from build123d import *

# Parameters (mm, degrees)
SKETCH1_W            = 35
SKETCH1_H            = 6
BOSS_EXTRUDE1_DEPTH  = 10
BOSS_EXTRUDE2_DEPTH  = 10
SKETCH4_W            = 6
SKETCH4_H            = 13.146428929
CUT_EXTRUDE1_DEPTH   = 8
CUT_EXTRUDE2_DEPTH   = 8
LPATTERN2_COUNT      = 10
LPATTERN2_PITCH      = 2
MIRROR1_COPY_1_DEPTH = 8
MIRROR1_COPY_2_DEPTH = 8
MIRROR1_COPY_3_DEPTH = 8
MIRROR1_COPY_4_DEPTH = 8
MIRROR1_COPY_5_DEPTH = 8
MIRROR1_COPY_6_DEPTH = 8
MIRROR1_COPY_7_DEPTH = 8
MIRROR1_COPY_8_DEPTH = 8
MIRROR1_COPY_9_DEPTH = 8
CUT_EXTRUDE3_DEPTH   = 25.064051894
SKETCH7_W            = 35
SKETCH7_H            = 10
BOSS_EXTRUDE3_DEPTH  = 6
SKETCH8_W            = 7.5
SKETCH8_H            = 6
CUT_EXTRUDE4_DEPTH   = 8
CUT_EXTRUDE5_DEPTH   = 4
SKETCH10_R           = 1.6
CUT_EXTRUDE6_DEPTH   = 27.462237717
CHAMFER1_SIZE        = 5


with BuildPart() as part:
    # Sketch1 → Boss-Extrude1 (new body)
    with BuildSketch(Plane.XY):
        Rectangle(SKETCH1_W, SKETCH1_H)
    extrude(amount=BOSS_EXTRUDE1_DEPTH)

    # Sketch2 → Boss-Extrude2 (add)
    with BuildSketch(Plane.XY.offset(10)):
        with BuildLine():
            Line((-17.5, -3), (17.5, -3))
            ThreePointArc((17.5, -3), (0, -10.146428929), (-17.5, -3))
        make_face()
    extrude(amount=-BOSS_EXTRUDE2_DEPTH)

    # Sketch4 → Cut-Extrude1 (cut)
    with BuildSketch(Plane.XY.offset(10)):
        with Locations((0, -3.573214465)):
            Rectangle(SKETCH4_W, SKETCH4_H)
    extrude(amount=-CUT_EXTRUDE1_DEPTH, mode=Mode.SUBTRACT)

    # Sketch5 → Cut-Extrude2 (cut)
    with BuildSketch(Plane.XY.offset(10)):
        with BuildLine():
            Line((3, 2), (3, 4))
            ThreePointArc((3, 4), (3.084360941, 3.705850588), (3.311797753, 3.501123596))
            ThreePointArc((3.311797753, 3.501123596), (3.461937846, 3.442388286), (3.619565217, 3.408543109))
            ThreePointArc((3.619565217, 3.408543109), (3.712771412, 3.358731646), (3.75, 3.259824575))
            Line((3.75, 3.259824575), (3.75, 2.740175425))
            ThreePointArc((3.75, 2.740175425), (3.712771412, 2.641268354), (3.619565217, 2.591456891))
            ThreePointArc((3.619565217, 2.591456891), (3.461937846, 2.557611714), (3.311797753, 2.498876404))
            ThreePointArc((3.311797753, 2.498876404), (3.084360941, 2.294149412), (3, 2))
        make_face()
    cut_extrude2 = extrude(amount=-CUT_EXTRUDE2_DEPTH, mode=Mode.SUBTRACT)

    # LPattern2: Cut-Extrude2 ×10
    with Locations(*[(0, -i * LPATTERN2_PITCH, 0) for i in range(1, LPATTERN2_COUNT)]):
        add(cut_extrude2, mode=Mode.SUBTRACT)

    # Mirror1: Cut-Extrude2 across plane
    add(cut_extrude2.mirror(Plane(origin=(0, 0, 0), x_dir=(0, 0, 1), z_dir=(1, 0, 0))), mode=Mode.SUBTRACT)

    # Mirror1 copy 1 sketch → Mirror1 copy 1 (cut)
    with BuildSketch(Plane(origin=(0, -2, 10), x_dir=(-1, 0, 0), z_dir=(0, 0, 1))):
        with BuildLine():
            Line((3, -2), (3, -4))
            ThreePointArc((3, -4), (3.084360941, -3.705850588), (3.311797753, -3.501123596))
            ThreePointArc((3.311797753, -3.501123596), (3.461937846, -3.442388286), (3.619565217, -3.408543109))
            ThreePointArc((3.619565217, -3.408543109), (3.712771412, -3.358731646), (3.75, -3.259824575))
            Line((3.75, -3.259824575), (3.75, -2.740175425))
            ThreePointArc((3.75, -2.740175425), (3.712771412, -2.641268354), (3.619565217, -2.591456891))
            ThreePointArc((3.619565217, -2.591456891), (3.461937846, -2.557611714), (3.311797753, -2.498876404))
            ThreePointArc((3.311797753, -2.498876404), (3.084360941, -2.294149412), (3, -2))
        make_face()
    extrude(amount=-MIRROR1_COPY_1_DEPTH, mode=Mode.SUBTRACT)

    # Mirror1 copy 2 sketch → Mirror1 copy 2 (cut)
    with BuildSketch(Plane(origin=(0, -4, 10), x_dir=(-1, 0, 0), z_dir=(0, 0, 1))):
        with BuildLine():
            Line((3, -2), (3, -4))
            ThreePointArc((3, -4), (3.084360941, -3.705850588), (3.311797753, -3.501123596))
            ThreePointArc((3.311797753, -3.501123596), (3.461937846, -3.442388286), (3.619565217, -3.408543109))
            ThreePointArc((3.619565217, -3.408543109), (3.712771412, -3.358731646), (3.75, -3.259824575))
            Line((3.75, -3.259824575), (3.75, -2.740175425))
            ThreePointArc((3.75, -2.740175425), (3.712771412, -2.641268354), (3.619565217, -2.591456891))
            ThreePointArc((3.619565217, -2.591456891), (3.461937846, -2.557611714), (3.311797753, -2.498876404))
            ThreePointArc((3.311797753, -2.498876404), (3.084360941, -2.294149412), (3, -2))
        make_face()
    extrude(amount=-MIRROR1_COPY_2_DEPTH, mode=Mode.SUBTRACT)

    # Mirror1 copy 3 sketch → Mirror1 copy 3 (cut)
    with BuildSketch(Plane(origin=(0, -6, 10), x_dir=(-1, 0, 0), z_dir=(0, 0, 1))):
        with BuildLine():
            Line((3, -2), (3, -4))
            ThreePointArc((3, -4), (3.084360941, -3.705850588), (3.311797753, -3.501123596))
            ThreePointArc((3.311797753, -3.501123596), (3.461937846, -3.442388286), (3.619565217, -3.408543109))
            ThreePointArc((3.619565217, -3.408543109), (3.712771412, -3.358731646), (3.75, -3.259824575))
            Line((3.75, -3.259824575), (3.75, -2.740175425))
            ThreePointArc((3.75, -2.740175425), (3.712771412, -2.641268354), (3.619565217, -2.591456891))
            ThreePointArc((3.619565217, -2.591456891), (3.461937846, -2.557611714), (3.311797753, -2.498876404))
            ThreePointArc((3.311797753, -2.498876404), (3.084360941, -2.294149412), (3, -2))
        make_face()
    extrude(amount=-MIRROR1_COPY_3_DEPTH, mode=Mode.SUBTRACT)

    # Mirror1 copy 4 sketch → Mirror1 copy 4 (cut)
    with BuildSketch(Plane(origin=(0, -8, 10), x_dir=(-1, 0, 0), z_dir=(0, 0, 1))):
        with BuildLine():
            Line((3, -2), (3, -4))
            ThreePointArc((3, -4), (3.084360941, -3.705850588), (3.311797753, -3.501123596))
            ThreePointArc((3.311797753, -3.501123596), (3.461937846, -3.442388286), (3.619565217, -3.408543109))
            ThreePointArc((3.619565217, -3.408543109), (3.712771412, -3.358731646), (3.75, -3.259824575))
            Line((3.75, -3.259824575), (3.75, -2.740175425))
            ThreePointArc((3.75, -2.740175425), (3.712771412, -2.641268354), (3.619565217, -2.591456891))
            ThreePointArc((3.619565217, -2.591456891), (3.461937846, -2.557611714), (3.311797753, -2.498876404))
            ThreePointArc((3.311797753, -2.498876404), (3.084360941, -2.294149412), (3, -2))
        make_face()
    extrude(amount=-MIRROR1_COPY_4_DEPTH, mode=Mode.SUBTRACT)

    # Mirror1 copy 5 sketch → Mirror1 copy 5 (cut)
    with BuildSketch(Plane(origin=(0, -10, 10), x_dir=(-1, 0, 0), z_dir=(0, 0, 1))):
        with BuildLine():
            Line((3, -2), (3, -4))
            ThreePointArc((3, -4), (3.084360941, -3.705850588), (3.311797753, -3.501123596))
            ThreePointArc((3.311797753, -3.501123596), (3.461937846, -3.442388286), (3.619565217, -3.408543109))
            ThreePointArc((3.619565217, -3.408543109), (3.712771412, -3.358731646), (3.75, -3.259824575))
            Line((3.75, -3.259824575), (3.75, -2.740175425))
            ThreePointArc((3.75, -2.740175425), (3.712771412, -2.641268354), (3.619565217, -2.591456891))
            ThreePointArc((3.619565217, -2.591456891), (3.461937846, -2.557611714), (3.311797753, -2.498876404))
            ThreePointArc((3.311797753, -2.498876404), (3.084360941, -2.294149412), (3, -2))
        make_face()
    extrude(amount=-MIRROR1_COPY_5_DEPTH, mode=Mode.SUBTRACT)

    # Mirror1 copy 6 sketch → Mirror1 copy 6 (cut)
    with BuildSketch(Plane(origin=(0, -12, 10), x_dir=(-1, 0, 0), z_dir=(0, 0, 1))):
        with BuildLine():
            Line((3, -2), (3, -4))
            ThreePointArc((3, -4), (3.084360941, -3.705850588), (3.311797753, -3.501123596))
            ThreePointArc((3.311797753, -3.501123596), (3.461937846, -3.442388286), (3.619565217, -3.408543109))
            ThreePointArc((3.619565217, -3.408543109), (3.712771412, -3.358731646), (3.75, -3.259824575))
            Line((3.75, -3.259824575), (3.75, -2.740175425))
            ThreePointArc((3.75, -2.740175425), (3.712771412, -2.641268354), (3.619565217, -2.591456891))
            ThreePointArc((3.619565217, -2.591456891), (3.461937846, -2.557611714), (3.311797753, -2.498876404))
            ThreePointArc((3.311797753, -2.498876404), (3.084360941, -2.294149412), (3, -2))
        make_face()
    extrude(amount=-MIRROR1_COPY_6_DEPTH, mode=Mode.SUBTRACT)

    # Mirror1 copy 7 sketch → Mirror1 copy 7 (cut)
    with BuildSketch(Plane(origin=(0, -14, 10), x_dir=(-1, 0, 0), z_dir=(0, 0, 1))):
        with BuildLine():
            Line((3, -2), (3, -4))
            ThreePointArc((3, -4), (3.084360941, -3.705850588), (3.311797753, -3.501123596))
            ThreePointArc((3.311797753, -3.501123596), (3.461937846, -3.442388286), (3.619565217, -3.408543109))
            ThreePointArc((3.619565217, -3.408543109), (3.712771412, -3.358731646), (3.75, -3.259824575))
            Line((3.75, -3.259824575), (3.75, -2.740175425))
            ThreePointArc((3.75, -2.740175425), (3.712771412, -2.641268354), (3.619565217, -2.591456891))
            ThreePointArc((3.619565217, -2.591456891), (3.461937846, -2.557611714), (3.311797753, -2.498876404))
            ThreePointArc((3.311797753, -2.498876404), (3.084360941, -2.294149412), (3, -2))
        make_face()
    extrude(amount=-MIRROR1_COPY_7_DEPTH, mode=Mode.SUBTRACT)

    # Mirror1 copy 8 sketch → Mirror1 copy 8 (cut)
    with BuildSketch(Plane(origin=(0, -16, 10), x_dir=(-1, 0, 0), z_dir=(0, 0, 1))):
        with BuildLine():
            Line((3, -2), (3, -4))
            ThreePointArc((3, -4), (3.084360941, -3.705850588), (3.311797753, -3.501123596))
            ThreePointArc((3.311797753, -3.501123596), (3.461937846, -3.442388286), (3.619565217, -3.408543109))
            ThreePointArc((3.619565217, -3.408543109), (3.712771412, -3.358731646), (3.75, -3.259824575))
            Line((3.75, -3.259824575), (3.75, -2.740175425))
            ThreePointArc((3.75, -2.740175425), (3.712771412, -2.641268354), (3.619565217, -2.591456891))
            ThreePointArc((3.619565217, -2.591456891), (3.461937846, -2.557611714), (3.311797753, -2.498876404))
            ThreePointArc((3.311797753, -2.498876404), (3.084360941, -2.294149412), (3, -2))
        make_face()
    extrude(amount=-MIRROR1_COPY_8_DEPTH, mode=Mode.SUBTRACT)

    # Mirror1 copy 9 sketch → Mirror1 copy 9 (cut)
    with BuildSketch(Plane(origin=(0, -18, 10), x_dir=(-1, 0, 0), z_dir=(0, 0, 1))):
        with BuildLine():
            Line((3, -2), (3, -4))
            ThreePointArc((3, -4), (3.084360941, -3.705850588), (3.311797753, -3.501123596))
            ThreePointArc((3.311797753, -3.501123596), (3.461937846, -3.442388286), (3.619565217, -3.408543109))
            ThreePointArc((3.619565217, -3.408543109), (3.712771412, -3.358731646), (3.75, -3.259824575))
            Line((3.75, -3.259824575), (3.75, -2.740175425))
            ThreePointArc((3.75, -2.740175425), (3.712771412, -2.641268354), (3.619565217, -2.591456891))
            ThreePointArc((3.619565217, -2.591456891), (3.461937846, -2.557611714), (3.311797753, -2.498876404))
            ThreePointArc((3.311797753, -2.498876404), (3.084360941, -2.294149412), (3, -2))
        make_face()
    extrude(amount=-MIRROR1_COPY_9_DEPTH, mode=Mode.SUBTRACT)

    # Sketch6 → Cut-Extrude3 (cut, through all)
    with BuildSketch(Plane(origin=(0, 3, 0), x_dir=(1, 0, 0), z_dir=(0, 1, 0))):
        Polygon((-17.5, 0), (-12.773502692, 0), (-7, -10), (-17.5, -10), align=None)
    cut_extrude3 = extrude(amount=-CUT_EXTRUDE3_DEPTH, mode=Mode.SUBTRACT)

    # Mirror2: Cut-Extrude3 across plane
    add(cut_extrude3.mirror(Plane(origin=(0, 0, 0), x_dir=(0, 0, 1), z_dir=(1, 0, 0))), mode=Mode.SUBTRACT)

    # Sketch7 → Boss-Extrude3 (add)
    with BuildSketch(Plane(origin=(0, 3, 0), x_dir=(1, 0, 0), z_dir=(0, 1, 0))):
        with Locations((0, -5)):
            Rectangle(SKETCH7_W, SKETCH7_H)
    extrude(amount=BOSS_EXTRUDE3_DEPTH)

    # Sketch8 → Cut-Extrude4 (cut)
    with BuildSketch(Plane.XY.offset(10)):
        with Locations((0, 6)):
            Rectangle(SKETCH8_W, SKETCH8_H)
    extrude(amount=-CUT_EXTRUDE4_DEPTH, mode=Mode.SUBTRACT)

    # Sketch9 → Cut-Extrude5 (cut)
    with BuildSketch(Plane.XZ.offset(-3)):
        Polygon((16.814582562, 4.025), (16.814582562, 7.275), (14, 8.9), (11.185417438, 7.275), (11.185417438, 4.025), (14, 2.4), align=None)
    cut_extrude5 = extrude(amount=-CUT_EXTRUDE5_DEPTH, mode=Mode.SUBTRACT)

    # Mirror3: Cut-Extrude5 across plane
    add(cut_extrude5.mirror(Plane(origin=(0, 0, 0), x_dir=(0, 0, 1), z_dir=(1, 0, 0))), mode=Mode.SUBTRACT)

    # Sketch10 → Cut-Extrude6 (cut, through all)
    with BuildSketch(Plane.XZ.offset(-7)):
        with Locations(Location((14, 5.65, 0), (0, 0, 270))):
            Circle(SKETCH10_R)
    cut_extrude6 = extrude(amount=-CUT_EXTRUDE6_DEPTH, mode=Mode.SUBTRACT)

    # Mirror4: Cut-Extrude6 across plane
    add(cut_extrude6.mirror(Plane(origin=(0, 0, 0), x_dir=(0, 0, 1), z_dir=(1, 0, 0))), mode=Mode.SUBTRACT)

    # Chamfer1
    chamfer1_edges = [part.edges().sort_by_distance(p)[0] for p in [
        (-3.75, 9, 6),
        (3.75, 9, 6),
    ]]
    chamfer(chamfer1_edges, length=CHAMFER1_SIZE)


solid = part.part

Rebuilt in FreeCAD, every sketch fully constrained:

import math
import FreeCAD as App
import Part
import Sketcher
Q = App.Units.Quantity


def edges_at(feature, points):
    """Names of the edges that pass closest to the given points."""
    edges = feature.Shape.Edges
    near = lambda p: min(range(len(edges)), key=lambda i: edges[i].distToShape(Part.Vertex(*p))[0])
    return sorted({f"Edge{near(p) + 1}" for p in points})


def add_polygon(sketch, points):
    """Adds a closed chain of lines whose ends are joined by coincident constraints."""
    first, n = sketch.GeometryCount, len(points)
    for a, b in zip(points, points[1:] + points[:1]):
        sketch.addGeometry(Part.LineSegment(App.Vector(*a, 0), App.Vector(*b, 0)), False)
    for i in range(n):
        sketch.addConstraint(Sketcher.Constraint("Coincident", first + i, 2, first + (i + 1) % n, 1))

doc = App.newDocument("Part")
body = doc.addObject("PartDesign::Body", "Body")

# Sketch on XY plane
sketch1 = body.newObject("Sketcher::SketchObject", "Sketch")
sketch1.AttachmentSupport = (doc.getObject("XY_Plane"), [""])
sketch1.MapMode = "FlatFace"
add_polygon(sketch1, [(-18, 3), (-18, -3), (18, -3), (18, 3)])  # lines 0-3
sketch1.addConstraint(Sketcher.Constraint("Vertical", 0))
sketch1.addConstraint(Sketcher.Constraint("Horizontal", 1))
sketch1.addConstraint(Sketcher.Constraint("Vertical", 2))
sketch1.addConstraint(Sketcher.Constraint("Horizontal", 3))
sketch1.addConstraint(Sketcher.Constraint("Symmetric", 0, 2, 2, 2, -1, 1))
sketch1.addConstraint(Sketcher.Constraint("DistanceX", 1, 1, 1, 2, 35.0))
sketch1.addConstraint(Sketcher.Constraint("DistanceY", 0, 2, 0, 1, 6.0))
pad1 = body.newObject("PartDesign::Pad", "Pad")
pad1.Profile = sketch1
pad1.Length = 10

# Sketch on XY plane
sketch2 = body.newObject("Sketcher::SketchObject", "Sketch001")
sketch2.AttachmentSupport = (doc.getObject("XY_Plane"), [""])
sketch2.MapMode = "FlatFace"
sketch2.AttachmentOffset = App.Placement(App.Vector(0, 0, 10), App.Rotation())
sketch2.addGeometry(Part.LineSegment(App.Vector(18, -3, 0), App.Vector(-18, -3, 0)), False)
sketch2.addGeometry(Part.ArcOfCircle(Part.Circle(App.Vector(0, 15, 0), App.Vector(0, 0, 1), 25), math.radians(-134), math.radians(-46)), False)
sketch2.addConstraint(Sketcher.Constraint("Coincident", 0, 1, 1, 2))
sketch2.addConstraint(Sketcher.Constraint("Coincident", 1, 1, 0, 2))
sketch2.addConstraint(Sketcher.Constraint("Horizontal", 0))
sketch2.addConstraint(Sketcher.Constraint("PointOnObject", 1, 3, -2))
sketch2.addConstraint(Sketcher.Constraint("Radius", 1, 25.0))
sketch2.addConstraint(Sketcher.Constraint("DistanceX", 0, 2, 0, 1, 35.0))
sketch2.addConstraint(Sketcher.Constraint("DistanceY", 0, 1, -1, 1, 3.0))
pad2 = body.newObject("PartDesign::Pad", "Pad001")
pad2.Profile = sketch2
pad2.Length = 10
pad2.Reversed = True

# Sketch on XY plane
sketch3 = body.newObject("Sketcher::SketchObject", "Sketch002")
sketch3.AttachmentSupport = (doc.getObject("XY_Plane"), [""])
sketch3.MapMode = "FlatFace"
sketch3.AttachmentOffset = App.Placement(App.Vector(0, 0, 10), App.Rotation())
add_polygon(sketch3, [(-3, 3), (-3, -10), (3, -10), (3, 3)])  # lines 0-3
sketch3.addConstraint(Sketcher.Constraint("Vertical", 0))
sketch3.addConstraint(Sketcher.Constraint("Horizontal", 1))
sketch3.addConstraint(Sketcher.Constraint("Vertical", 2))
sketch3.addConstraint(Sketcher.Constraint("Horizontal", 3))
sketch3.addConstraint(Sketcher.Constraint("DistanceX", 1, 1, 1, 2, 6.0))
sketch3.addConstraint(Sketcher.Constraint("DistanceX", 0, 2, -1, 1, 3.0))
sketch3.addConstraint(Sketcher.Constraint("DistanceY", -1, 1, 2, 2, 3.0))
sketch3.addConstraint(Sketcher.Constraint("DistanceY", 0, 2, 0, 1, 13.146429))
pocket1 = body.newObject("PartDesign::Pocket", "Pocket")
pocket1.Profile = sketch3
pocket1.Length = 8

# Sketch on XY plane
sketch4 = body.newObject("Sketcher::SketchObject", "Sketch003")
sketch4.AttachmentSupport = (doc.getObject("XY_Plane"), [""])
sketch4.MapMode = "FlatFace"
sketch4.AttachmentOffset = App.Placement(App.Vector(0, 0, 10), App.Rotation())
sketch4.addGeometry(Part.LineSegment(App.Vector(3, 4, 0), App.Vector(3, 2, 0)), False)
sketch4.addGeometry(Part.ArcOfCircle(Part.Circle(App.Vector(3.55, 2, 0), App.Vector(0, 0, 1), 0.55), math.radians(116), math.radians(180)), False)
sketch4.addGeometry(Part.ArcOfCircle(Part.Circle(App.Vector(3.75, 1.6, 0), App.Vector(0, 0, 1), 1), math.radians(97.49), math.radians(115.99)), False)
sketch4.addGeometry(Part.ArcOfCircle(Part.Circle(App.Vector(3.6, 2.74, 0), App.Vector(0, 0, 1), 0.15), math.radians(-83), math.radians(0)), False)
sketch4.addGeometry(Part.LineSegment(App.Vector(3.75, 2.74, 0), App.Vector(3.75, 3.26, 0)), False)
sketch4.addGeometry(Part.ArcOfCircle(Part.Circle(App.Vector(3.6, 3.26, 0), App.Vector(0, 0, 1), 0.15), math.radians(0), math.radians(83)), False)
sketch4.addGeometry(Part.ArcOfCircle(Part.Circle(App.Vector(3.75, 4.4, 0), App.Vector(0, 0, 1), 1), math.radians(-115.99), math.radians(-97.49)), False)
sketch4.addGeometry(Part.ArcOfCircle(Part.Circle(App.Vector(3.55, 4, 0), App.Vector(0, 0, 1), 0.55), math.radians(180), math.radians(244)), False)
sketch4.addConstraint(Sketcher.Constraint("Tangent", 0, 2, 1, 2))
sketch4.addConstraint(Sketcher.Constraint("Tangent", 1, 1, 2, 2))
sketch4.addConstraint(Sketcher.Constraint("Tangent", 2, 1, 3, 1))
sketch4.addConstraint(Sketcher.Constraint("Tangent", 3, 2, 4, 1))
sketch4.addConstraint(Sketcher.Constraint("Tangent", 4, 2, 5, 1))
sketch4.addConstraint(Sketcher.Constraint("Tangent", 5, 2, 6, 2))
sketch4.addConstraint(Sketcher.Constraint("Tangent", 6, 1, 7, 2))
sketch4.addConstraint(Sketcher.Constraint("Tangent", 7, 1, 0, 1))
sketch4.addConstraint(Sketcher.Constraint("Vertical", 0))
sketch4.addConstraint(Sketcher.Constraint("Vertical", 4))
sketch4.addConstraint(Sketcher.Constraint("Equal", 3, 5))
sketch4.addConstraint(Sketcher.Constraint("Equal", 2, 6))
sketch4.addConstraint(Sketcher.Constraint("Equal", 1, 7))
sketch4.addConstraint(Sketcher.Constraint("Vertical", 2, 3, 6, 3))
sketch4.addConstraint(Sketcher.Constraint("Vertical", 6, 3, 3, 2))
sketch4.addConstraint(Sketcher.Constraint("Radius", 2, 1.0))
sketch4.addConstraint(Sketcher.Constraint("DistanceY", 0, 2, 0, 1, 2.0))
sketch4.addConstraint(Sketcher.Constraint("Radius", 3, 0.15))
sketch4.addConstraint(Sketcher.Constraint("DistanceY", -1, 1, 1, 3, 2.0))
sketch4.addConstraint(Sketcher.Constraint("DistanceX", -1, 1, 0, 2, 3.0))
sketch4.addConstraint(Sketcher.Constraint("Radius", 1, 0.555))
sketch4.addConstraint(Sketcher.Constraint("DistanceY", -1, 1, 2, 3, 1.6))
pocket2 = body.newObject("PartDesign::Pocket", "Pocket001")
pocket2.Profile = sketch4
pocket2.Length = 8
doc.recompute()

linearpattern = body.newObject("PartDesign::LinearPattern", "LinearPattern")
linearpattern.Originals = [pocket2]
linearpattern.Direction = (doc.getObject("Y_Axis"), [""])
linearpattern.Mode = "offset"
linearpattern.Offset = 2
linearpattern.Occurrences = 10
linearpattern.Reversed = True
body.Tip = linearpattern
doc.recompute()

mirrored = body.newObject("PartDesign::Mirrored", "Mirrored")
mirrored.Originals = [pocket2]
mirrored.MirrorPlane = (doc.getObject("YZ_Plane"), [""])
body.Tip = mirrored

# Sketch on XY plane
sketch5 = body.newObject("Sketcher::SketchObject", "Sketch004")
sketch5.AttachmentSupport = (doc.getObject("XY_Plane"), [""])
sketch5.MapMode = "FlatFace"
sketch5.AttachmentOffset = App.Placement(App.Vector(0, 0, 10), App.Rotation())
sketch5.addGeometry(Part.LineSegment(App.Vector(-3, 0, 0), App.Vector(-3, 2, 0)), False)
sketch5.addGeometry(Part.ArcOfCircle(Part.Circle(App.Vector(-3.55, 2, 0), App.Vector(0, 0, 1), 0.55), math.radians(-64), math.radians(0)), False)
sketch5.addGeometry(Part.ArcOfCircle(Part.Circle(App.Vector(-3.75, 2.4, 0), App.Vector(0, 0, 1), 1), math.radians(-82.51), math.radians(-64.01)), False)
sketch5.addGeometry(Part.ArcOfCircle(Part.Circle(App.Vector(-3.6, 1.26, 0), App.Vector(0, 0, 1), 0.15), math.radians(97), math.radians(180)), False)
sketch5.addGeometry(Part.LineSegment(App.Vector(-3.75, 1.26, 0), App.Vector(-3.75, 0.74, 0)), False)
sketch5.addGeometry(Part.ArcOfCircle(Part.Circle(App.Vector(-3.6, 0.74, 0), App.Vector(0, 0, 1), 0.15), math.radians(180), math.radians(263)), False)
sketch5.addGeometry(Part.ArcOfCircle(Part.Circle(App.Vector(-3.75, -0.4, 0), App.Vector(0, 0, 1), 1), math.radians(64.01), math.radians(82.51)), False)
sketch5.addGeometry(Part.ArcOfCircle(Part.Circle(App.Vector(-3.55, 0, 0), App.Vector(0, 0, 1), 0.55), math.radians(0), math.radians(64)), False)
sketch5.addConstraint(Sketcher.Constraint("Tangent", 0, 2, 1, 2))
sketch5.addConstraint(Sketcher.Constraint("Tangent", 1, 1, 2, 2))
sketch5.addConstraint(Sketcher.Constraint("Tangent", 2, 1, 3, 1))
sketch5.addConstraint(Sketcher.Constraint("Tangent", 3, 2, 4, 1))
sketch5.addConstraint(Sketcher.Constraint("Tangent", 4, 2, 5, 1))
sketch5.addConstraint(Sketcher.Constraint("Tangent", 5, 2, 6, 2))
sketch5.addConstraint(Sketcher.Constraint("Tangent", 6, 1, 7, 2))
sketch5.addConstraint(Sketcher.Constraint("Tangent", 7, 1, 0, 1))
sketch5.addConstraint(Sketcher.Constraint("Vertical", 0))
sketch5.addConstraint(Sketcher.Constraint("Vertical", 4))
sketch5.addConstraint(Sketcher.Constraint("Equal", 3, 5))
sketch5.addConstraint(Sketcher.Constraint("Equal", 2, 6))
sketch5.addConstraint(Sketcher.Constraint("Equal", 1, 7))
sketch5.addConstraint(Sketcher.Constraint("PointOnObject", 7, 3, -1))
sketch5.addConstraint(Sketcher.Constraint("Vertical", 2, 3, 6, 3))
sketch5.addConstraint(Sketcher.Constraint("Vertical", 6, 3, 3, 2))
sketch5.addConstraint(Sketcher.Constraint("Radius", 2, 1.0))
sketch5.addConstraint(Sketcher.Constraint("DistanceY", 0, 1, 0, 2, 2.0))
sketch5.addConstraint(Sketcher.Constraint("Radius", 3, 0.15))
sketch5.addConstraint(Sketcher.Constraint("DistanceX", 0, 2, -1, 1, 3.0))
sketch5.addConstraint(Sketcher.Constraint("Radius", 1, 0.555))
sketch5.addConstraint(Sketcher.Constraint("DistanceY", -1, 1, 2, 3, 2.4))
pocket3 = body.newObject("PartDesign::Pocket", "Pocket002")
pocket3.Profile = sketch5
pocket3.Length = 8

# Sketch on XY plane
sketch6 = body.newObject("Sketcher::SketchObject", "Sketch005")
sketch6.AttachmentSupport = (doc.getObject("XY_Plane"), [""])
sketch6.MapMode = "FlatFace"
sketch6.AttachmentOffset = App.Placement(App.Vector(0, 0, 10), App.Rotation())
sketch6.addGeometry(Part.LineSegment(App.Vector(-3, -2, 0), App.Vector(-3, 0, 0)), False)
sketch6.addGeometry(Part.ArcOfCircle(Part.Circle(App.Vector(-3.55, 0, 0), App.Vector(0, 0, 1), 0.55), math.radians(-64), math.radians(0)), False)
sketch6.addGeometry(Part.ArcOfCircle(Part.Circle(App.Vector(-3.75, 0.4, 0), App.Vector(0, 0, 1), 1), math.radians(-82.51), math.radians(-64.01)), False)
sketch6.addGeometry(Part.ArcOfCircle(Part.Circle(App.Vector(-3.6, -0.74, 0), App.Vector(0, 0, 1), 0.15), math.radians(97), math.radians(180)), False)
sketch6.addGeometry(Part.LineSegment(App.Vector(-3.75, -0.74, 0), App.Vector(-3.75, -1.26, 0)), False)
sketch6.addGeometry(Part.ArcOfCircle(Part.Circle(App.Vector(-3.6, -1.26, 0), App.Vector(0, 0, 1), 0.15), math.radians(180), math.radians(263)), False)
sketch6.addGeometry(Part.ArcOfCircle(Part.Circle(App.Vector(-3.75, -2.4, 0), App.Vector(0, 0, 1), 1), math.radians(64.01), math.radians(82.51)), False)
sketch6.addGeometry(Part.ArcOfCircle(Part.Circle(App.Vector(-3.55, -2, 0), App.Vector(0, 0, 1), 0.55), math.radians(0), math.radians(64)), False)
sketch6.addConstraint(Sketcher.Constraint("Tangent", 0, 2, 1, 2))
sketch6.addConstraint(Sketcher.Constraint("Tangent", 1, 1, 2, 2))
sketch6.addConstraint(Sketcher.Constraint("Tangent", 2, 1, 3, 1))
sketch6.addConstraint(Sketcher.Constraint("Tangent", 3, 2, 4, 1))
sketch6.addConstraint(Sketcher.Constraint("Tangent", 4, 2, 5, 1))
sketch6.addConstraint(Sketcher.Constraint("Tangent", 5, 2, 6, 2))
sketch6.addConstraint(Sketcher.Constraint("Tangent", 6, 1, 7, 2))
sketch6.addConstraint(Sketcher.Constraint("Tangent", 7, 1, 0, 1))
sketch6.addConstraint(Sketcher.Constraint("Vertical", 0))
sketch6.addConstraint(Sketcher.Constraint("Vertical", 4))
sketch6.addConstraint(Sketcher.Constraint("Equal", 3, 5))
sketch6.addConstraint(Sketcher.Constraint("Equal", 2, 6))
sketch6.addConstraint(Sketcher.Constraint("Equal", 1, 7))
sketch6.addConstraint(Sketcher.Constraint("PointOnObject", 1, 3, -1))
sketch6.addConstraint(Sketcher.Constraint("Vertical", 2, 3, 6, 3))
sketch6.addConstraint(Sketcher.Constraint("Vertical", 6, 3, 3, 2))
sketch6.addConstraint(Sketcher.Constraint("Radius", 2, 1.0))
sketch6.addConstraint(Sketcher.Constraint("DistanceY", 0, 1, 0, 2, 2.0))
sketch6.addConstraint(Sketcher.Constraint("Radius", 3, 0.15))
sketch6.addConstraint(Sketcher.Constraint("DistanceX", 0, 2, -1, 1, 3.0))
sketch6.addConstraint(Sketcher.Constraint("Radius", 1, 0.555))
sketch6.addConstraint(Sketcher.Constraint("DistanceY", -1, 1, 2, 3, 0.4))
pocket4 = body.newObject("PartDesign::Pocket", "Pocket003")
pocket4.Profile = sketch6
pocket4.Length = 8

# Sketch on XY plane
sketch7 = body.newObject("Sketcher::SketchObject", "Sketch006")
sketch7.AttachmentSupport = (doc.getObject("XY_Plane"), [""])
sketch7.MapMode = "FlatFace"
sketch7.AttachmentOffset = App.Placement(App.Vector(0, 0, 10), App.Rotation())
sketch7.addGeometry(Part.LineSegment(App.Vector(-3, -4, 0), App.Vector(-3, -2, 0)), False)
sketch7.addGeometry(Part.ArcOfCircle(Part.Circle(App.Vector(-3.55, -2, 0), App.Vector(0, 0, 1), 0.55), math.radians(-64), math.radians(0)), False)
sketch7.addGeometry(Part.ArcOfCircle(Part.Circle(App.Vector(-3.75, -1.6, 0), App.Vector(0, 0, 1), 1), math.radians(-82.51), math.radians(-64.01)), False)
sketch7.addGeometry(Part.ArcOfCircle(Part.Circle(App.Vector(-3.6, -2.74, 0), App.Vector(0, 0, 1), 0.15), math.radians(97), math.radians(180)), False)
sketch7.addGeometry(Part.LineSegment(App.Vector(-3.75, -2.74, 0), App.Vector(-3.75, -3.26, 0)), False)
sketch7.addGeometry(Part.ArcOfCircle(Part.Circle(App.Vector(-3.6, -3.26, 0), App.Vector(0, 0, 1), 0.15), math.radians(180), math.radians(263)), False)
sketch7.addGeometry(Part.ArcOfCircle(Part.Circle(App.Vector(-3.75, -4.4, 0), App.Vector(0, 0, 1), 1), math.radians(64.01), math.radians(82.51)), False)
sketch7.addGeometry(Part.ArcOfCircle(Part.Circle(App.Vector(-3.55, -4, 0), App.Vector(0, 0, 1), 0.55), math.radians(0), math.radians(64)), False)
sketch7.addConstraint(Sketcher.Constraint("Tangent", 0, 2, 1, 2))
sketch7.addConstraint(Sketcher.Constraint("Tangent", 1, 1, 2, 2))
sketch7.addConstraint(Sketcher.Constraint("Tangent", 2, 1, 3, 1))
sketch7.addConstraint(Sketcher.Constraint("Tangent", 3, 2, 4, 1))
sketch7.addConstraint(Sketcher.Constraint("Tangent", 4, 2, 5, 1))
sketch7.addConstraint(Sketcher.Constraint("Tangent", 5, 2, 6, 2))
sketch7.addConstraint(Sketcher.Constraint("Tangent", 6, 1, 7, 2))
sketch7.addConstraint(Sketcher.Constraint("Tangent", 7, 1, 0, 1))
sketch7.addConstraint(Sketcher.Constraint("Vertical", 0))
sketch7.addConstraint(Sketcher.Constraint("Vertical", 4))
sketch7.addConstraint(Sketcher.Constraint("Equal", 3, 5))
sketch7.addConstraint(Sketcher.Constraint("Equal", 2, 6))
sketch7.addConstraint(Sketcher.Constraint("Equal", 1, 7))
sketch7.addConstraint(Sketcher.Constraint("Vertical", 2, 3, 6, 3))
sketch7.addConstraint(Sketcher.Constraint("Vertical", 6, 3, 3, 2))
sketch7.addConstraint(Sketcher.Constraint("Radius", 2, 1.0))
sketch7.addConstraint(Sketcher.Constraint("DistanceY", 0, 1, 0, 2, 2.0))
sketch7.addConstraint(Sketcher.Constraint("Radius", 3, 0.15))
sketch7.addConstraint(Sketcher.Constraint("DistanceY", 1, 3, -1, 1, 2.0))
sketch7.addConstraint(Sketcher.Constraint("DistanceX", 0, 2, -1, 1, 3.0))
sketch7.addConstraint(Sketcher.Constraint("Radius", 1, 0.555))
sketch7.addConstraint(Sketcher.Constraint("DistanceY", 2, 3, -1, 1, 1.6))
pocket5 = body.newObject("PartDesign::Pocket", "Pocket004")
pocket5.Profile = sketch7
pocket5.Length = 8

# Sketch on XY plane
sketch8 = body.newObject("Sketcher::SketchObject", "Sketch007")
sketch8.AttachmentSupport = (doc.getObject("XY_Plane"), [""])
sketch8.MapMode = "FlatFace"
sketch8.AttachmentOffset = App.Placement(App.Vector(0, 0, 10), App.Rotation())
sketch8.addGeometry(Part.LineSegment(App.Vector(-3, -6, 0), App.Vector(-3, -4, 0)), False)
sketch8.addGeometry(Part.ArcOfCircle(Part.Circle(App.Vector(-3.55, -4, 0), App.Vector(0, 0, 1), 0.55), math.radians(-64), math.radians(0)), False)
sketch8.addGeometry(Part.ArcOfCircle(Part.Circle(App.Vector(-3.75, -3.6, 0), App.Vector(0, 0, 1), 1), math.radians(-82.51), math.radians(-64.01)), False)
sketch8.addGeometry(Part.ArcOfCircle(Part.Circle(App.Vector(-3.6, -4.74, 0), App.Vector(0, 0, 1), 0.15), math.radians(97), math.radians(180)), False)
sketch8.addGeometry(Part.LineSegment(App.Vector(-3.75, -4.74, 0), App.Vector(-3.75, -5.26, 0)), False)
sketch8.addGeometry(Part.ArcOfCircle(Part.Circle(App.Vector(-3.6, -5.26, 0), App.Vector(0, 0, 1), 0.15), math.radians(180), math.radians(263)), False)
sketch8.addGeometry(Part.ArcOfCircle(Part.Circle(App.Vector(-3.75, -6.4, 0), App.Vector(0, 0, 1), 1), math.radians(64.01), math.radians(82.51)), False)
sketch8.addGeometry(Part.ArcOfCircle(Part.Circle(App.Vector(-3.55, -6, 0), App.Vector(0, 0, 1), 0.55), math.radians(0), math.radians(64)), False)
sketch8.addConstraint(Sketcher.Constraint("Tangent", 0, 2, 1, 2))
sketch8.addConstraint(Sketcher.Constraint("Tangent", 1, 1, 2, 2))
sketch8.addConstraint(Sketcher.Constraint("Tangent", 2, 1, 3, 1))
sketch8.addConstraint(Sketcher.Constraint("Tangent", 3, 2, 4, 1))
sketch8.addConstraint(Sketcher.Constraint("Tangent", 4, 2, 5, 1))
sketch8.addConstraint(Sketcher.Constraint("Tangent", 5, 2, 6, 2))
sketch8.addConstraint(Sketcher.Constraint("Tangent", 6, 1, 7, 2))
sketch8.addConstraint(Sketcher.Constraint("Tangent", 7, 1, 0, 1))
sketch8.addConstraint(Sketcher.Constraint("Vertical", 0))
sketch8.addConstraint(Sketcher.Constraint("Vertical", 4))
sketch8.addConstraint(Sketcher.Constraint("Equal", 3, 5))
sketch8.addConstraint(Sketcher.Constraint("Equal", 2, 6))
sketch8.addConstraint(Sketcher.Constraint("Equal", 1, 7))
sketch8.addConstraint(Sketcher.Constraint("Vertical", 2, 3, 6, 3))
sketch8.addConstraint(Sketcher.Constraint("Vertical", 6, 3, 3, 2))
sketch8.addConstraint(Sketcher.Constraint("Radius", 2, 1.0))
sketch8.addConstraint(Sketcher.Constraint("DistanceY", 0, 1, 0, 2, 2.0))
sketch8.addConstraint(Sketcher.Constraint("Radius", 3, 0.15))
sketch8.addConstraint(Sketcher.Constraint("DistanceY", 1, 3, -1, 1, 4.0))
sketch8.addConstraint(Sketcher.Constraint("DistanceX", 0, 2, -1, 1, 3.0))
sketch8.addConstraint(Sketcher.Constraint("Radius", 1, 0.555))
sketch8.addConstraint(Sketcher.Constraint("DistanceY", 2, 3, -1, 1, 3.6))
pocket6 = body.newObject("PartDesign::Pocket", "Pocket005")
pocket6.Profile = sketch8
pocket6.Length = 8

# Sketch on XY plane
sketch9 = body.newObject("Sketcher::SketchObject", "Sketch008")
sketch9.AttachmentSupport = (doc.getObject("XY_Plane"), [""])
sketch9.MapMode = "FlatFace"
sketch9.AttachmentOffset = App.Placement(App.Vector(0, 0, 10), App.Rotation())
sketch9.addGeometry(Part.LineSegment(App.Vector(-3, -8, 0), App.Vector(-3, -6, 0)), False)
sketch9.addGeometry(Part.ArcOfCircle(Part.Circle(App.Vector(-3.55, -6, 0), App.Vector(0, 0, 1), 0.55), math.radians(-64), math.radians(0)), False)
sketch9.addGeometry(Part.ArcOfCircle(Part.Circle(App.Vector(-3.75, -5.6, 0), App.Vector(0, 0, 1), 1), math.radians(-82.51), math.radians(-64.01)), False)
sketch9.addGeometry(Part.ArcOfCircle(Part.Circle(App.Vector(-3.6, -6.74, 0), App.Vector(0, 0, 1), 0.15), math.radians(97), math.radians(180)), False)
sketch9.addGeometry(Part.LineSegment(App.Vector(-3.75, -6.74, 0), App.Vector(-3.75, -7.26, 0)), False)
sketch9.addGeometry(Part.ArcOfCircle(Part.Circle(App.Vector(-3.6, -7.26, 0), App.Vector(0, 0, 1), 0.15), math.radians(180), math.radians(263)), False)
sketch9.addGeometry(Part.ArcOfCircle(Part.Circle(App.Vector(-3.75, -8.4, 0), App.Vector(0, 0, 1), 1), math.radians(64.01), math.radians(82.51)), False)
sketch9.addGeometry(Part.ArcOfCircle(Part.Circle(App.Vector(-3.55, -8, 0), App.Vector(0, 0, 1), 0.55), math.radians(0), math.radians(64)), False)
sketch9.addConstraint(Sketcher.Constraint("Tangent", 0, 2, 1, 2))
sketch9.addConstraint(Sketcher.Constraint("Tangent", 1, 1, 2, 2))
sketch9.addConstraint(Sketcher.Constraint("Tangent", 2, 1, 3, 1))
sketch9.addConstraint(Sketcher.Constraint("Tangent", 3, 2, 4, 1))
sketch9.addConstraint(Sketcher.Constraint("Tangent", 4, 2, 5, 1))
sketch9.addConstraint(Sketcher.Constraint("Tangent", 5, 2, 6, 2))
sketch9.addConstraint(Sketcher.Constraint("Tangent", 6, 1, 7, 2))
sketch9.addConstraint(Sketcher.Constraint("Tangent", 7, 1, 0, 1))
sketch9.addConstraint(Sketcher.Constraint("Vertical", 0))
sketch9.addConstraint(Sketcher.Constraint("Vertical", 4))
sketch9.addConstraint(Sketcher.Constraint("Equal", 3, 5))
sketch9.addConstraint(Sketcher.Constraint("Equal", 2, 6))
sketch9.addConstraint(Sketcher.Constraint("Equal", 1, 7))
sketch9.addConstraint(Sketcher.Constraint("Vertical", 2, 3, 6, 3))
sketch9.addConstraint(Sketcher.Constraint("Vertical", 6, 3, 3, 2))
sketch9.addConstraint(Sketcher.Constraint("Radius", 2, 1.0))
sketch9.addConstraint(Sketcher.Constraint("DistanceY", 0, 1, 0, 2, 2.0))
sketch9.addConstraint(Sketcher.Constraint("Radius", 3, 0.15))
sketch9.addConstraint(Sketcher.Constraint("DistanceY", 1, 3, -1, 1, 6.0))
sketch9.addConstraint(Sketcher.Constraint("DistanceX", 0, 2, -1, 1, 3.0))
sketch9.addConstraint(Sketcher.Constraint("Radius", 1, 0.555))
sketch9.addConstraint(Sketcher.Constraint("DistanceY", 2, 3, -1, 1, 5.6))
pocket7 = body.newObject("PartDesign::Pocket", "Pocket006")
pocket7.Profile = sketch9
pocket7.Length = 8

# Sketch on XY plane
sketch10 = body.newObject("Sketcher::SketchObject", "Sketch009")
sketch10.AttachmentSupport = (doc.getObject("XY_Plane"), [""])
sketch10.MapMode = "FlatFace"
sketch10.AttachmentOffset = App.Placement(App.Vector(0, 0, 10), App.Rotation())
sketch10.addGeometry(Part.LineSegment(App.Vector(-3, -10, 0), App.Vector(-3, -8, 0)), False)
sketch10.addGeometry(Part.ArcOfCircle(Part.Circle(App.Vector(-3.55, -8, 0), App.Vector(0, 0, 1), 0.55), math.radians(-64), math.radians(0)), False)
sketch10.addGeometry(Part.ArcOfCircle(Part.Circle(App.Vector(-3.75, -7.6, 0), App.Vector(0, 0, 1), 1), math.radians(-82.51), math.radians(-64.01)), False)
sketch10.addGeometry(Part.ArcOfCircle(Part.Circle(App.Vector(-3.6, -8.74, 0), App.Vector(0, 0, 1), 0.15), math.radians(97), math.radians(180)), False)
sketch10.addGeometry(Part.LineSegment(App.Vector(-3.75, -8.74, 0), App.Vector(-3.75, -9.26, 0)), False)
sketch10.addGeometry(Part.ArcOfCircle(Part.Circle(App.Vector(-3.6, -9.26, 0), App.Vector(0, 0, 1), 0.15), math.radians(180), math.radians(263)), False)
sketch10.addGeometry(Part.ArcOfCircle(Part.Circle(App.Vector(-3.75, -10.4, 0), App.Vector(0, 0, 1), 1), math.radians(64.01), math.radians(82.51)), False)
sketch10.addGeometry(Part.ArcOfCircle(Part.Circle(App.Vector(-3.55, -10, 0), App.Vector(0, 0, 1), 0.55), math.radians(0), math.radians(64)), False)
sketch10.addConstraint(Sketcher.Constraint("Tangent", 0, 2, 1, 2))
sketch10.addConstraint(Sketcher.Constraint("Tangent", 1, 1, 2, 2))
sketch10.addConstraint(Sketcher.Constraint("Tangent", 2, 1, 3, 1))
sketch10.addConstraint(Sketcher.Constraint("Tangent", 3, 2, 4, 1))
sketch10.addConstraint(Sketcher.Constraint("Tangent", 4, 2, 5, 1))
sketch10.addConstraint(Sketcher.Constraint("Tangent", 5, 2, 6, 2))
sketch10.addConstraint(Sketcher.Constraint("Tangent", 6, 1, 7, 2))
sketch10.addConstraint(Sketcher.Constraint("Tangent", 7, 1, 0, 1))
sketch10.addConstraint(Sketcher.Constraint("Vertical", 0))
sketch10.addConstraint(Sketcher.Constraint("Vertical", 4))
sketch10.addConstraint(Sketcher.Constraint("Equal", 3, 5))
sketch10.addConstraint(Sketcher.Constraint("Equal", 2, 6))
sketch10.addConstraint(Sketcher.Constraint("Equal", 1, 7))
sketch10.addConstraint(Sketcher.Constraint("Vertical", 2, 3, 6, 3))
sketch10.addConstraint(Sketcher.Constraint("Vertical", 6, 3, 3, 2))
sketch10.addConstraint(Sketcher.Constraint("Radius", 2, 1.0))
sketch10.addConstraint(Sketcher.Constraint("DistanceY", 0, 1, 0, 2, 2.0))
sketch10.addConstraint(Sketcher.Constraint("Radius", 3, 0.15))
sketch10.addConstraint(Sketcher.Constraint("DistanceY", 1, 3, -1, 1, 8.0))
sketch10.addConstraint(Sketcher.Constraint("DistanceX", 0, 2, -1, 1, 3.0))
sketch10.addConstraint(Sketcher.Constraint("Radius", 1, 0.555))
sketch10.addConstraint(Sketcher.Constraint("DistanceY", 2, 3, -1, 1, 7.6))
pocket8 = body.newObject("PartDesign::Pocket", "Pocket007")
pocket8.Profile = sketch10
pocket8.Length = 8

# Sketch on XY plane
sketch11 = body.newObject("Sketcher::SketchObject", "Sketch010")
sketch11.AttachmentSupport = (doc.getObject("XY_Plane"), [""])
sketch11.MapMode = "FlatFace"
sketch11.AttachmentOffset = App.Placement(App.Vector(0, 0, 10), App.Rotation())
sketch11.addGeometry(Part.LineSegment(App.Vector(-3, -12, 0), App.Vector(-3, -10, 0)), False)
sketch11.addGeometry(Part.ArcOfCircle(Part.Circle(App.Vector(-3.55, -10, 0), App.Vector(0, 0, 1), 0.55), math.radians(-64), math.radians(0)), False)
sketch11.addGeometry(Part.ArcOfCircle(Part.Circle(App.Vector(-3.75, -9.6, 0), App.Vector(0, 0, 1), 1), math.radians(-82.51), math.radians(-64.01)), False)
sketch11.addGeometry(Part.ArcOfCircle(Part.Circle(App.Vector(-3.6, -10.74, 0), App.Vector(0, 0, 1), 0.15), math.radians(97), math.radians(180)), False)
sketch11.addGeometry(Part.LineSegment(App.Vector(-3.75, -10.74, 0), App.Vector(-3.75, -11.26, 0)), False)
sketch11.addGeometry(Part.ArcOfCircle(Part.Circle(App.Vector(-3.6, -11.26, 0), App.Vector(0, 0, 1), 0.15), math.radians(180), math.radians(263)), False)
sketch11.addGeometry(Part.ArcOfCircle(Part.Circle(App.Vector(-3.75, -12.4, 0), App.Vector(0, 0, 1), 1), math.radians(64.01), math.radians(82.51)), False)
sketch11.addGeometry(Part.ArcOfCircle(Part.Circle(App.Vector(-3.55, -12, 0), App.Vector(0, 0, 1), 0.55), math.radians(0), math.radians(64)), False)
sketch11.addConstraint(Sketcher.Constraint("Tangent", 0, 2, 1, 2))
sketch11.addConstraint(Sketcher.Constraint("Tangent", 1, 1, 2, 2))
sketch11.addConstraint(Sketcher.Constraint("Tangent", 2, 1, 3, 1))
sketch11.addConstraint(Sketcher.Constraint("Tangent", 3, 2, 4, 1))
sketch11.addConstraint(Sketcher.Constraint("Tangent", 4, 2, 5, 1))
sketch11.addConstraint(Sketcher.Constraint("Tangent", 5, 2, 6, 2))
sketch11.addConstraint(Sketcher.Constraint("Tangent", 6, 1, 7, 2))
sketch11.addConstraint(Sketcher.Constraint("Tangent", 7, 1, 0, 1))
sketch11.addConstraint(Sketcher.Constraint("Vertical", 0))
sketch11.addConstraint(Sketcher.Constraint("Vertical", 4))
sketch11.addConstraint(Sketcher.Constraint("Equal", 3, 5))
sketch11.addConstraint(Sketcher.Constraint("Equal", 2, 6))
sketch11.addConstraint(Sketcher.Constraint("Equal", 1, 7))
sketch11.addConstraint(Sketcher.Constraint("Vertical", 2, 3, 6, 3))
sketch11.addConstraint(Sketcher.Constraint("Vertical", 6, 3, 3, 2))
sketch11.addConstraint(Sketcher.Constraint("Radius", 2, 1.0))
sketch11.addConstraint(Sketcher.Constraint("DistanceY", 0, 1, 0, 2, 2.0))
sketch11.addConstraint(Sketcher.Constraint("Radius", 3, 0.15))
sketch11.addConstraint(Sketcher.Constraint("DistanceY", 1, 3, -1, 1, 10.0))
sketch11.addConstraint(Sketcher.Constraint("DistanceX", 0, 2, -1, 1, 3.0))
sketch11.addConstraint(Sketcher.Constraint("Radius", 1, 0.555))
sketch11.addConstraint(Sketcher.Constraint("DistanceY", 2, 3, -1, 1, 9.6))
pocket9 = body.newObject("PartDesign::Pocket", "Pocket008")
pocket9.Profile = sketch11
pocket9.Length = 8

# Sketch on XY plane
sketch12 = body.newObject("Sketcher::SketchObject", "Sketch011")
sketch12.AttachmentSupport = (doc.getObject("XY_Plane"), [""])
sketch12.MapMode = "FlatFace"
sketch12.AttachmentOffset = App.Placement(App.Vector(0, 0, 10), App.Rotation())
sketch12.addGeometry(Part.LineSegment(App.Vector(-3, -14, 0), App.Vector(-3, -12, 0)), False)
sketch12.addGeometry(Part.ArcOfCircle(Part.Circle(App.Vector(-3.55, -12, 0), App.Vector(0, 0, 1), 0.55), math.radians(-64), math.radians(0)), False)
sketch12.addGeometry(Part.ArcOfCircle(Part.Circle(App.Vector(-3.75, -11.6, 0), App.Vector(0, 0, 1), 1), math.radians(-82.51), math.radians(-64.01)), False)
sketch12.addGeometry(Part.ArcOfCircle(Part.Circle(App.Vector(-3.6, -12.74, 0), App.Vector(0, 0, 1), 0.15), math.radians(97), math.radians(180)), False)
sketch12.addGeometry(Part.LineSegment(App.Vector(-3.75, -12.74, 0), App.Vector(-3.75, -13.26, 0)), False)
sketch12.addGeometry(Part.ArcOfCircle(Part.Circle(App.Vector(-3.6, -13.26, 0), App.Vector(0, 0, 1), 0.15), math.radians(180), math.radians(263)), False)
sketch12.addGeometry(Part.ArcOfCircle(Part.Circle(App.Vector(-3.75, -14.4, 0), App.Vector(0, 0, 1), 1), math.radians(64.01), math.radians(82.51)), False)
sketch12.addGeometry(Part.ArcOfCircle(Part.Circle(App.Vector(-3.55, -14, 0), App.Vector(0, 0, 1), 0.55), math.radians(0), math.radians(64)), False)
sketch12.addConstraint(Sketcher.Constraint("Tangent", 0, 2, 1, 2))
sketch12.addConstraint(Sketcher.Constraint("Tangent", 1, 1, 2, 2))
sketch12.addConstraint(Sketcher.Constraint("Tangent", 2, 1, 3, 1))
sketch12.addConstraint(Sketcher.Constraint("Tangent", 3, 2, 4, 1))
sketch12.addConstraint(Sketcher.Constraint("Tangent", 4, 2, 5, 1))
sketch12.addConstraint(Sketcher.Constraint("Tangent", 5, 2, 6, 2))
sketch12.addConstraint(Sketcher.Constraint("Tangent", 6, 1, 7, 2))
sketch12.addConstraint(Sketcher.Constraint("Tangent", 7, 1, 0, 1))
sketch12.addConstraint(Sketcher.Constraint("Vertical", 0))
sketch12.addConstraint(Sketcher.Constraint("Vertical", 4))
sketch12.addConstraint(Sketcher.Constraint("Equal", 3, 5))
sketch12.addConstraint(Sketcher.Constraint("Equal", 2, 6))
sketch12.addConstraint(Sketcher.Constraint("Equal", 1, 7))
sketch12.addConstraint(Sketcher.Constraint("Vertical", 2, 3, 6, 3))
sketch12.addConstraint(Sketcher.Constraint("Vertical", 6, 3, 3, 2))
sketch12.addConstraint(Sketcher.Constraint("Radius", 2, 1.0))
sketch12.addConstraint(Sketcher.Constraint("DistanceY", 0, 1, 0, 2, 2.0))
sketch12.addConstraint(Sketcher.Constraint("Radius", 3, 0.15))
sketch12.addConstraint(Sketcher.Constraint("DistanceY", 1, 3, -1, 1, 12.0))
sketch12.addConstraint(Sketcher.Constraint("DistanceX", 0, 2, -1, 1, 3.0))
sketch12.addConstraint(Sketcher.Constraint("Radius", 1, 0.555))
sketch12.addConstraint(Sketcher.Constraint("DistanceY", 2, 3, -1, 1, 11.6))
pocket10 = body.newObject("PartDesign::Pocket", "Pocket009")
pocket10.Profile = sketch12
pocket10.Length = 8

# Sketch on XY plane
sketch13 = body.newObject("Sketcher::SketchObject", "Sketch012")
sketch13.AttachmentSupport = (doc.getObject("XY_Plane"), [""])
sketch13.MapMode = "FlatFace"
sketch13.AttachmentOffset = App.Placement(App.Vector(0, 0, 10), App.Rotation())
sketch13.addGeometry(Part.LineSegment(App.Vector(-3, -16, 0), App.Vector(-3, -14, 0)), False)
sketch13.addGeometry(Part.ArcOfCircle(Part.Circle(App.Vector(-3.55, -14, 0), App.Vector(0, 0, 1), 0.55), math.radians(-64), math.radians(0)), False)
sketch13.addGeometry(Part.ArcOfCircle(Part.Circle(App.Vector(-3.75, -13.6, 0), App.Vector(0, 0, 1), 1), math.radians(-82.51), math.radians(-64.01)), False)
sketch13.addGeometry(Part.ArcOfCircle(Part.Circle(App.Vector(-3.6, -14.74, 0), App.Vector(0, 0, 1), 0.15), math.radians(97), math.radians(180)), False)
sketch13.addGeometry(Part.LineSegment(App.Vector(-3.75, -14.74, 0), App.Vector(-3.75, -15.26, 0)), False)
sketch13.addGeometry(Part.ArcOfCircle(Part.Circle(App.Vector(-3.6, -15.26, 0), App.Vector(0, 0, 1), 0.15), math.radians(180), math.radians(263)), False)
sketch13.addGeometry(Part.ArcOfCircle(Part.Circle(App.Vector(-3.75, -16.4, 0), App.Vector(0, 0, 1), 1), math.radians(64.01), math.radians(82.51)), False)
sketch13.addGeometry(Part.ArcOfCircle(Part.Circle(App.Vector(-3.55, -16, 0), App.Vector(0, 0, 1), 0.55), math.radians(0), math.radians(64)), False)
sketch13.addConstraint(Sketcher.Constraint("Tangent", 0, 2, 1, 2))
sketch13.addConstraint(Sketcher.Constraint("Tangent", 1, 1, 2, 2))
sketch13.addConstraint(Sketcher.Constraint("Tangent", 2, 1, 3, 1))
sketch13.addConstraint(Sketcher.Constraint("Tangent", 3, 2, 4, 1))
sketch13.addConstraint(Sketcher.Constraint("Tangent", 4, 2, 5, 1))
sketch13.addConstraint(Sketcher.Constraint("Tangent", 5, 2, 6, 2))
sketch13.addConstraint(Sketcher.Constraint("Tangent", 6, 1, 7, 2))
sketch13.addConstraint(Sketcher.Constraint("Tangent", 7, 1, 0, 1))
sketch13.addConstraint(Sketcher.Constraint("Vertical", 0))
sketch13.addConstraint(Sketcher.Constraint("Vertical", 4))
sketch13.addConstraint(Sketcher.Constraint("Equal", 3, 5))
sketch13.addConstraint(Sketcher.Constraint("Equal", 2, 6))
sketch13.addConstraint(Sketcher.Constraint("Equal", 1, 7))
sketch13.addConstraint(Sketcher.Constraint("Vertical", 2, 3, 6, 3))
sketch13.addConstraint(Sketcher.Constraint("Vertical", 6, 3, 3, 2))
sketch13.addConstraint(Sketcher.Constraint("Radius", 2, 1.0))
sketch13.addConstraint(Sketcher.Constraint("DistanceY", 0, 1, 0, 2, 2.0))
sketch13.addConstraint(Sketcher.Constraint("Radius", 3, 0.15))
sketch13.addConstraint(Sketcher.Constraint("DistanceY", 1, 3, -1, 1, 14.0))
sketch13.addConstraint(Sketcher.Constraint("DistanceX", 0, 2, -1, 1, 3.0))
sketch13.addConstraint(Sketcher.Constraint("Radius", 1, 0.555))
sketch13.addConstraint(Sketcher.Constraint("DistanceY", 2, 3, -1, 1, 13.6))
pocket11 = body.newObject("PartDesign::Pocket", "Pocket010")
pocket11.Profile = sketch13
pocket11.Length = 8

# Sketch on XZ plane
sketch14 = body.newObject("Sketcher::SketchObject", "Sketch013")
sketch14.AttachmentSupport = (doc.getObject("XZ_Plane"), [""])
sketch14.MapMode = "FlatFace"
sketch14.AttachmentOffset = App.Placement(App.Vector(0, 0, -3), App.Rotation())
add_polygon(sketch14, [(-12.8, 0), (-17.5, 0), (-17.5, 10), (-7, 10)])  # lines 0-3
sketch14.addConstraint(Sketcher.Constraint("Horizontal", 0))
sketch14.addConstraint(Sketcher.Constraint("Vertical", 1))
sketch14.addConstraint(Sketcher.Constraint("Horizontal", 2))
sketch14.addConstraint(Sketcher.Constraint("PointOnObject", 0, 2, -1))
sketch14.addConstraint(Sketcher.Constraint("DistanceY", 1, 1, 1, 2, 10.0))
sketch14.addConstraint(Sketcher.Constraint("Angle", 3, Q("-120 deg")))
sketch14.addConstraint(Sketcher.Constraint("DistanceX", 2, 1, 2, 2, 10.5))
sketch14.addConstraint(Sketcher.Constraint("DistanceX", 2, 2, -1, 1, 7.0))
pocket12 = body.newObject("PartDesign::Pocket", "Pocket011")
pocket12.Profile = sketch14
pocket12.Type = "ThroughAll"
pocket12.Reversed = True
doc.recompute()

mirrored2 = body.newObject("PartDesign::Mirrored", "Mirrored001")
mirrored2.Originals = [pocket12]
mirrored2.MirrorPlane = (doc.getObject("YZ_Plane"), [""])
body.Tip = mirrored2

# Sketch on XZ plane
sketch15 = body.newObject("Sketcher::SketchObject", "Sketch014")
sketch15.AttachmentSupport = (doc.getObject("XZ_Plane"), [""])
sketch15.MapMode = "FlatFace"
sketch15.AttachmentOffset = App.Placement(App.Vector(0, 0, -3), App.Rotation())
add_polygon(sketch15, [(-18, 0), (-18, 10), (18, 10), (18, 0)])  # lines 0-3
sketch15.addConstraint(Sketcher.Constraint("Vertical", 0))
sketch15.addConstraint(Sketcher.Constraint("Horizontal", 1))
sketch15.addConstraint(Sketcher.Constraint("Vertical", 2))
sketch15.addConstraint(Sketcher.Constraint("Horizontal", 3))
sketch15.addConstraint(Sketcher.Constraint("Symmetric", 2, 2, 3, 2, -1, 1))
sketch15.addConstraint(Sketcher.Constraint("DistanceX", 1, 1, 1, 2, 35.0))
sketch15.addConstraint(Sketcher.Constraint("DistanceY", 0, 1, 0, 2, 10.0))
pad3 = body.newObject("PartDesign::Pad", "Pad002")
pad3.Profile = sketch15
pad3.Length = 6
pad3.Reversed = True

# Sketch on XY plane
sketch16 = body.newObject("Sketcher::SketchObject", "Sketch015")
sketch16.AttachmentSupport = (doc.getObject("XY_Plane"), [""])
sketch16.MapMode = "FlatFace"
sketch16.AttachmentOffset = App.Placement(App.Vector(0, 0, 10), App.Rotation())
add_polygon(sketch16, [(-4, 9), (-4, 3), (4, 3), (4, 9)])  # lines 0-3
sketch16.addConstraint(Sketcher.Constraint("Vertical", 0))
sketch16.addConstraint(Sketcher.Constraint("Horizontal", 1))
sketch16.addConstraint(Sketcher.Constraint("Vertical", 2))
sketch16.addConstraint(Sketcher.Constraint("Horizontal", 3))
sketch16.addConstraint(Sketcher.Constraint("DistanceY", 0, 2, 0, 1, 6.0))
sketch16.addConstraint(Sketcher.Constraint("DistanceX", 1, 1, 1, 2, 7.5))
sketch16.addConstraint(Sketcher.Constraint("DistanceY", -1, 1, 0, 2, 3.0))
sketch16.addConstraint(Sketcher.Constraint("DistanceX", 0, 2, -1, 1, 3.75))
pocket13 = body.newObject("PartDesign::Pocket", "Pocket012")
pocket13.Profile = sketch16
pocket13.Length = 8

# Sketch on XZ plane
sketch17 = body.newObject("Sketcher::SketchObject", "Sketch016")
sketch17.AttachmentSupport = (doc.getObject("XZ_Plane"), [""])
sketch17.MapMode = "FlatFace"
sketch17.AttachmentOffset = App.Placement(App.Vector(0, 0, -3), App.Rotation())
add_polygon(sketch17, [(16.8, 4), (16.8, 7.3), (14, 8.9), (11.2, 7.3), (11.2, 4), (14, 2.4)])  # lines 0-5
sketch17.addConstraint(Sketcher.Constraint("Vertical", 0))
sketch17.addConstraint(Sketcher.Constraint("Vertical", 3))
sketch17.addConstraint(Sketcher.Constraint("Parallel", 1, 4))
sketch17.addConstraint(Sketcher.Constraint("Parallel", 2, 5))
sketch17.addConstraint(Sketcher.Constraint("Horizontal", 0, 2, 2, 2))
sketch17.addConstraint(Sketcher.Constraint("Horizontal", 3, 2, 5, 2))
sketch17.addConstraint(Sketcher.Constraint("Vertical", 1, 2, 4, 2))
sketch17.addConstraint(Sketcher.Constraint("Angle", 1, Q("150 deg")))
sketch17.addConstraint(Sketcher.Constraint("DistanceX", -1, 1, 1, 2, 14.0))
sketch17.addConstraint(Sketcher.Constraint("DistanceY", 0, 1, 0, 2, 3.25))
sketch17.addConstraint(Sketcher.Constraint("DistanceY", -1, 1, 1, 2, 8.9))
sketch17.addConstraint(Sketcher.Constraint("DistanceY", -1, 1, 4, 2, 2.4))
pocket14 = body.newObject("PartDesign::Pocket", "Pocket013")
pocket14.Profile = sketch17
pocket14.Length = 4
doc.recompute()

mirrored3 = body.newObject("PartDesign::Mirrored", "Mirrored002")
mirrored3.Originals = [pocket14]
mirrored3.MirrorPlane = (doc.getObject("YZ_Plane"), [""])
body.Tip = mirrored3

# Sketch on XZ plane
sketch18 = body.newObject("Sketcher::SketchObject", "Sketch017")
sketch18.AttachmentSupport = (doc.getObject("XZ_Plane"), [""])
sketch18.MapMode = "FlatFace"
sketch18.AttachmentOffset = App.Placement(App.Vector(0, 0, -7), App.Rotation())
sketch18.addGeometry(Part.Circle(App.Vector(14, 5.7, 0), App.Vector(0, 0, 1), 1.6), False)
sketch18.addConstraint(Sketcher.Constraint("Diameter", 0, 3.2))
sketch18.addConstraint(Sketcher.Constraint("DistanceX", -1, 1, 0, 3, 14.0))
sketch18.addConstraint(Sketcher.Constraint("DistanceY", -1, 1, 0, 3, 5.65))
pocket15 = body.newObject("PartDesign::Pocket", "Pocket014")
pocket15.Profile = sketch18
pocket15.Type = "ThroughAll"
doc.recompute()

mirrored4 = body.newObject("PartDesign::Mirrored", "Mirrored003")
mirrored4.Originals = [pocket15]
mirrored4.MirrorPlane = (doc.getObject("YZ_Plane"), [""])
body.Tip = mirrored4
doc.recompute()

chamfer = body.newObject("PartDesign::Chamfer", "Chamfer")
chamfer.Base = (mirrored4, edges_at(mirrored4, [(-3.75, 9, 6), (3.75, 9, 6)]))
chamfer.Size = 5

doc.recompute()
